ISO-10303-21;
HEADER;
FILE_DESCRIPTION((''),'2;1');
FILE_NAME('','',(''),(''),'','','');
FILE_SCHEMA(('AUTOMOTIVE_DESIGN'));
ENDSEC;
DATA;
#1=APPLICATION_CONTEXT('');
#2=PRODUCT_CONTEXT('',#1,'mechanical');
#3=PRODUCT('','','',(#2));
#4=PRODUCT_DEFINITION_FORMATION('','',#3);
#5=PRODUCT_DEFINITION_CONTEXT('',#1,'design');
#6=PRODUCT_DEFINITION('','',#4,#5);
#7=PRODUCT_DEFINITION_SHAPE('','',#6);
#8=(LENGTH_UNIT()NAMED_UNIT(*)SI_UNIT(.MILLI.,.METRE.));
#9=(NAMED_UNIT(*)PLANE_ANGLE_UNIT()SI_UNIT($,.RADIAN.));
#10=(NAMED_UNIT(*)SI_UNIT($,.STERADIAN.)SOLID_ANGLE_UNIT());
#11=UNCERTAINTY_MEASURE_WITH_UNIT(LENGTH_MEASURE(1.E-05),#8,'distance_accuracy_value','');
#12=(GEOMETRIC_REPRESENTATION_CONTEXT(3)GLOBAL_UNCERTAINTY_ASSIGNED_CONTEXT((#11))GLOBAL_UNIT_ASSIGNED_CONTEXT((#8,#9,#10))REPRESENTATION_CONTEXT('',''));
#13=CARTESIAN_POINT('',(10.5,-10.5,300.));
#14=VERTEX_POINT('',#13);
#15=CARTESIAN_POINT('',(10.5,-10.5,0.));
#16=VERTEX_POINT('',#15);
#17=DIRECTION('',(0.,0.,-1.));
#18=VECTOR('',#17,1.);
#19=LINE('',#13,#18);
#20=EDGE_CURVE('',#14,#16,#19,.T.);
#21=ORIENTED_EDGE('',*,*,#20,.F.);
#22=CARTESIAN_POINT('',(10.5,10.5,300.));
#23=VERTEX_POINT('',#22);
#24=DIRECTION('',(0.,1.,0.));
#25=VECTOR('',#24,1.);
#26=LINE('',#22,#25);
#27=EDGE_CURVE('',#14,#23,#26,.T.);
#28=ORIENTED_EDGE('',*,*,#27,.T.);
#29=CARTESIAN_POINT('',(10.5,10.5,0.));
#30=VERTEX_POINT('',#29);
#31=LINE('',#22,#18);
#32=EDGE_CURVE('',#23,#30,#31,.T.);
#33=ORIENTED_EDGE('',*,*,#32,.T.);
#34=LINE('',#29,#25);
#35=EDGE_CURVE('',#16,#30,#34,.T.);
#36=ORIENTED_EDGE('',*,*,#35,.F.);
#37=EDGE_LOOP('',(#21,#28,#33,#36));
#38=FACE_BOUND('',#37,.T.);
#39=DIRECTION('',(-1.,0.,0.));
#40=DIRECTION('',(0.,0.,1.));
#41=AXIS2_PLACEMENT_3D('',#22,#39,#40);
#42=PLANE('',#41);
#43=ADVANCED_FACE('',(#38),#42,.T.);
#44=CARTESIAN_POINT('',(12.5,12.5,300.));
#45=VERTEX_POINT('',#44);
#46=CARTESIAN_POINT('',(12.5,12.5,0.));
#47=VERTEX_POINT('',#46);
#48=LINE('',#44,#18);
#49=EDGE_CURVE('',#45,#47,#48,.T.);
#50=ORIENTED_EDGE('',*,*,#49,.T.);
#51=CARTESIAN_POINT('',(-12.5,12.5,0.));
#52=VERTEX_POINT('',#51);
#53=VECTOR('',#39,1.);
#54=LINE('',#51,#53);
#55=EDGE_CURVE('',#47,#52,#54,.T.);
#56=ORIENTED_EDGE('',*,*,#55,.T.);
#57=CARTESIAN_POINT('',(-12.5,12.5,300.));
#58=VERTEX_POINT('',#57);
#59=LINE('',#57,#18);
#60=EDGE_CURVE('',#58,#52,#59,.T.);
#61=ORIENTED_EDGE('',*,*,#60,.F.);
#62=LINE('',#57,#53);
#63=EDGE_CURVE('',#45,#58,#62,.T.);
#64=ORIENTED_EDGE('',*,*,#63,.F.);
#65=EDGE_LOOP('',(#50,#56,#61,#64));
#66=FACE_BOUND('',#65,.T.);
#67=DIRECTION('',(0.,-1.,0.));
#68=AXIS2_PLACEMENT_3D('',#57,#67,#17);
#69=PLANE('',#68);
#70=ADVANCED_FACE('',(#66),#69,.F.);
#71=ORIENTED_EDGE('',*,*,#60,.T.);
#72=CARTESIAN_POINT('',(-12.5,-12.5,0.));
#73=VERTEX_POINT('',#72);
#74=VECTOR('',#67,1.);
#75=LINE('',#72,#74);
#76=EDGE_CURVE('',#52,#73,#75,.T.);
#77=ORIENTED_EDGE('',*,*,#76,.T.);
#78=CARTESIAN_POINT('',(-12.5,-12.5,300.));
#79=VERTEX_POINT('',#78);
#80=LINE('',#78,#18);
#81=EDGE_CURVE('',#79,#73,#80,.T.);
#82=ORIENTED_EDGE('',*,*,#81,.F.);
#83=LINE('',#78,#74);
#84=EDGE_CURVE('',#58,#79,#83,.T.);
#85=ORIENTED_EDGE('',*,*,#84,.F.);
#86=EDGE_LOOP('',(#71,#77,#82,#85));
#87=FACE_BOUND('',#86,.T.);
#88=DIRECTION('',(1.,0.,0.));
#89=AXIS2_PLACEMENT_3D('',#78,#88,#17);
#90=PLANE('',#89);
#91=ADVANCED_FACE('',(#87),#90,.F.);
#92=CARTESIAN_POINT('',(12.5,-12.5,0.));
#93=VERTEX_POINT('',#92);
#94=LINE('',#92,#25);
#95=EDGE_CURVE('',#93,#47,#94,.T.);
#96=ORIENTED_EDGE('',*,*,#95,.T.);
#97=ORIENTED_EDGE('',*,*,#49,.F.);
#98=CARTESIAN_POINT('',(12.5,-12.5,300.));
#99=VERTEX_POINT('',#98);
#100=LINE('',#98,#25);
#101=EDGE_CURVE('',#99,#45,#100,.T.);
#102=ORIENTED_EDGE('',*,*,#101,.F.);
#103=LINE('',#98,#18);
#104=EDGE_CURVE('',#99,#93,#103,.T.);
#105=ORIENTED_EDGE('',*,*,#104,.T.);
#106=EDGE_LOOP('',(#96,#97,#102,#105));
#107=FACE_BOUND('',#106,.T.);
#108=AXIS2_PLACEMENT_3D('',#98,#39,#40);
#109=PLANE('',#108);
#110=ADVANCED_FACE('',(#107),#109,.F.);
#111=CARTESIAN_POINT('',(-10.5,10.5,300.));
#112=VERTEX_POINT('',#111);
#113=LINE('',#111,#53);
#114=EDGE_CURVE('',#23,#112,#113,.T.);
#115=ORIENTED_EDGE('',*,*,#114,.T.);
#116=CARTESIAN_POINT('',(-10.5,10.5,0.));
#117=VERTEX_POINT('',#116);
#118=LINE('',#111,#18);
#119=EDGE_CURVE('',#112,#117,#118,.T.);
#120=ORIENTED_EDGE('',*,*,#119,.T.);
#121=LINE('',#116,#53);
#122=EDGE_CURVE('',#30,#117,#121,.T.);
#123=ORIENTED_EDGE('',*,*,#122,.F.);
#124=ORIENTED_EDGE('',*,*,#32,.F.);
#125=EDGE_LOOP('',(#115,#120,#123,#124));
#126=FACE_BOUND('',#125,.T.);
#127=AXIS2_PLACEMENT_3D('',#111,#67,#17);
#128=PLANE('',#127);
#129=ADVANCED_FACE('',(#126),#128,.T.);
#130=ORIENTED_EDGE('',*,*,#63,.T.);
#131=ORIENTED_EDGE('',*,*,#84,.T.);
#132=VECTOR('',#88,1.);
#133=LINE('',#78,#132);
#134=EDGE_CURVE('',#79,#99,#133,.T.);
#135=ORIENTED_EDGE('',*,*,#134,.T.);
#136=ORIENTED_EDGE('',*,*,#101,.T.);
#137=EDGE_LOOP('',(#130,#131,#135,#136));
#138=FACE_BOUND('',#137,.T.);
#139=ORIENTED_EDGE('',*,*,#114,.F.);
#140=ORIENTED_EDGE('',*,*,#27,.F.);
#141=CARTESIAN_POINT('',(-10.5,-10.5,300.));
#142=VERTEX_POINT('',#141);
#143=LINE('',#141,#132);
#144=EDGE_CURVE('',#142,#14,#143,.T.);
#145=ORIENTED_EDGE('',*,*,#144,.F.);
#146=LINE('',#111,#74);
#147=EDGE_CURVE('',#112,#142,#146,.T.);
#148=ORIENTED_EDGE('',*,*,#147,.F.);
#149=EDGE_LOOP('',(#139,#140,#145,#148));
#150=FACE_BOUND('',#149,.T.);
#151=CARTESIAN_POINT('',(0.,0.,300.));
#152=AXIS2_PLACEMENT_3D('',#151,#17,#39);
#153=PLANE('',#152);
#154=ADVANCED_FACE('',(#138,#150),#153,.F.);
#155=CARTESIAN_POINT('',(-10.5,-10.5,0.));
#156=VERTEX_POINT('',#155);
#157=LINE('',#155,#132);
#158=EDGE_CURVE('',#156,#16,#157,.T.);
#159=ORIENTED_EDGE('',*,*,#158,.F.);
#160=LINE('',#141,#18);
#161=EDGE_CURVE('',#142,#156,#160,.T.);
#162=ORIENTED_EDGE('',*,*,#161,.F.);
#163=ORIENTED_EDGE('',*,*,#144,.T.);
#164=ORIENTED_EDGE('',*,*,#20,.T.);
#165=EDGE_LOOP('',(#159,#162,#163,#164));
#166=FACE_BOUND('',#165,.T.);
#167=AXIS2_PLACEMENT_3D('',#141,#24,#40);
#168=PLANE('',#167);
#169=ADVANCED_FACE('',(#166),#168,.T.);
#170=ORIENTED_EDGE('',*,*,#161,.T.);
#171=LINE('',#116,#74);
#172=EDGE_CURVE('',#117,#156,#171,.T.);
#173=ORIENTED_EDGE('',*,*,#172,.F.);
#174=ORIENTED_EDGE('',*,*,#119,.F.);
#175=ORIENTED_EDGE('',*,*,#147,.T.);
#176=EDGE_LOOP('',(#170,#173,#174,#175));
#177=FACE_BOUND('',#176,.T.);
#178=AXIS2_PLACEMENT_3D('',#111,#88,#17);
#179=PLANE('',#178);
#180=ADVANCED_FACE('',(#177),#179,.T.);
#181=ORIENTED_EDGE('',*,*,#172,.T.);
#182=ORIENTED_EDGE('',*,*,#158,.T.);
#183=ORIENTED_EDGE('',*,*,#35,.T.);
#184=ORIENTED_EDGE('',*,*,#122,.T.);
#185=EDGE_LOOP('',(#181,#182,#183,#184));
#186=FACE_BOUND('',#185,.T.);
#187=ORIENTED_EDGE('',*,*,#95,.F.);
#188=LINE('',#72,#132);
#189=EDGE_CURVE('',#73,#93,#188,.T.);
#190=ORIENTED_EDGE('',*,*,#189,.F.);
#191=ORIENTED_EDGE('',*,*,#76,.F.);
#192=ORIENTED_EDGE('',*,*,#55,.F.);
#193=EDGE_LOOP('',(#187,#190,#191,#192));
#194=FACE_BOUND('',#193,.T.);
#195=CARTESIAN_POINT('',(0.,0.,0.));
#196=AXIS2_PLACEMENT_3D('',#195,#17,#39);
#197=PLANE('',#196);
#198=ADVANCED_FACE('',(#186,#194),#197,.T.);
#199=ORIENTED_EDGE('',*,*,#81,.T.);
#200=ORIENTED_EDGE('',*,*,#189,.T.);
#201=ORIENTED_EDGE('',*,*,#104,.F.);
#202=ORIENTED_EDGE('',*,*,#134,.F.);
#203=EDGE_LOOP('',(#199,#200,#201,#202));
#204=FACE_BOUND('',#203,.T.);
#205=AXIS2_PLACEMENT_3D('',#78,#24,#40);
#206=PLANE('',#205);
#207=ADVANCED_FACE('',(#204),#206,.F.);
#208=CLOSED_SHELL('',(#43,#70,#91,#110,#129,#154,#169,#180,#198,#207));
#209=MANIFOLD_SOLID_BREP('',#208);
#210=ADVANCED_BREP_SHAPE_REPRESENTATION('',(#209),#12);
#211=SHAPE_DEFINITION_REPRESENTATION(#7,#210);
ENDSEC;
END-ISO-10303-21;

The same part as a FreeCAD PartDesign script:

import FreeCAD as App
import Part
import Sketcher

V = App.Vector
Q = App.Units.Quantity


def add_polygon(sketch, points):
    """Adds a closed chain of lines whose ends are joined by coincident constraints."""
    first, n = sketch.GeometryCount, len(points)
    for a, b in zip(points, points[1:] + points[:1]):
        sketch.addGeometry(Part.LineSegment(App.Vector(*a, 0), App.Vector(*b, 0)), False)
    for i in range(n):
        sketch.addConstraint(Sketcher.Constraint("Coincident", first + i, 2, first + (i + 1) % n, 1))

doc = App.newDocument("Part")
body = doc.addObject("PartDesign::Body", "Body")

# Sketch on XY plane
sketch1 = body.newObject("Sketcher::SketchObject", "Sketch")
sketch1.AttachmentSupport = (doc.getObject("XY_Plane"), [""])
sketch1.MapMode = "FlatFace"
add_polygon(sketch1, [(-12, 12), (-12, -12), (12, -12), (12, 12)])  # lines 0-3
add_polygon(sketch1, [(10, -10), (-10, -10), (-10, 10), (10, 10)])  # lines 4-7
sketch1.addConstraint([
    Sketcher.Constraint("Vertical", 0),
    Sketcher.Constraint("Horizontal", 1),
    Sketcher.Constraint("Vertical", 2),
    Sketcher.Constraint("Horizontal", 3),
    Sketcher.Constraint("Horizontal", 4),
    Sketcher.Constraint("Vertical", 5),
    Sketcher.Constraint("Horizontal", 6),
    Sketcher.Constraint("Vertical", 7),
    Sketcher.Constraint("Symmetric", 0, 2, 2, 2, -1, 1),
    Sketcher.Constraint("Symmetric", 4, 2, 6, 2, -1, 1),
    Sketcher.Constraint("Equal", 3, 0),
    Sketcher.Constraint("Equal", 6, 5),
    Sketcher.Constraint("DistanceX", 1, 1, 1, 2, Q("25 mm")),
    Sketcher.Constraint("DistanceX", 4, 2, 4, 1, Q("21 mm")),
])
pad1 = body.newObject("PartDesign::Pad", "Pad")
pad1.Profile = sketch1
pad1.Length = 300

doc.recompute()
